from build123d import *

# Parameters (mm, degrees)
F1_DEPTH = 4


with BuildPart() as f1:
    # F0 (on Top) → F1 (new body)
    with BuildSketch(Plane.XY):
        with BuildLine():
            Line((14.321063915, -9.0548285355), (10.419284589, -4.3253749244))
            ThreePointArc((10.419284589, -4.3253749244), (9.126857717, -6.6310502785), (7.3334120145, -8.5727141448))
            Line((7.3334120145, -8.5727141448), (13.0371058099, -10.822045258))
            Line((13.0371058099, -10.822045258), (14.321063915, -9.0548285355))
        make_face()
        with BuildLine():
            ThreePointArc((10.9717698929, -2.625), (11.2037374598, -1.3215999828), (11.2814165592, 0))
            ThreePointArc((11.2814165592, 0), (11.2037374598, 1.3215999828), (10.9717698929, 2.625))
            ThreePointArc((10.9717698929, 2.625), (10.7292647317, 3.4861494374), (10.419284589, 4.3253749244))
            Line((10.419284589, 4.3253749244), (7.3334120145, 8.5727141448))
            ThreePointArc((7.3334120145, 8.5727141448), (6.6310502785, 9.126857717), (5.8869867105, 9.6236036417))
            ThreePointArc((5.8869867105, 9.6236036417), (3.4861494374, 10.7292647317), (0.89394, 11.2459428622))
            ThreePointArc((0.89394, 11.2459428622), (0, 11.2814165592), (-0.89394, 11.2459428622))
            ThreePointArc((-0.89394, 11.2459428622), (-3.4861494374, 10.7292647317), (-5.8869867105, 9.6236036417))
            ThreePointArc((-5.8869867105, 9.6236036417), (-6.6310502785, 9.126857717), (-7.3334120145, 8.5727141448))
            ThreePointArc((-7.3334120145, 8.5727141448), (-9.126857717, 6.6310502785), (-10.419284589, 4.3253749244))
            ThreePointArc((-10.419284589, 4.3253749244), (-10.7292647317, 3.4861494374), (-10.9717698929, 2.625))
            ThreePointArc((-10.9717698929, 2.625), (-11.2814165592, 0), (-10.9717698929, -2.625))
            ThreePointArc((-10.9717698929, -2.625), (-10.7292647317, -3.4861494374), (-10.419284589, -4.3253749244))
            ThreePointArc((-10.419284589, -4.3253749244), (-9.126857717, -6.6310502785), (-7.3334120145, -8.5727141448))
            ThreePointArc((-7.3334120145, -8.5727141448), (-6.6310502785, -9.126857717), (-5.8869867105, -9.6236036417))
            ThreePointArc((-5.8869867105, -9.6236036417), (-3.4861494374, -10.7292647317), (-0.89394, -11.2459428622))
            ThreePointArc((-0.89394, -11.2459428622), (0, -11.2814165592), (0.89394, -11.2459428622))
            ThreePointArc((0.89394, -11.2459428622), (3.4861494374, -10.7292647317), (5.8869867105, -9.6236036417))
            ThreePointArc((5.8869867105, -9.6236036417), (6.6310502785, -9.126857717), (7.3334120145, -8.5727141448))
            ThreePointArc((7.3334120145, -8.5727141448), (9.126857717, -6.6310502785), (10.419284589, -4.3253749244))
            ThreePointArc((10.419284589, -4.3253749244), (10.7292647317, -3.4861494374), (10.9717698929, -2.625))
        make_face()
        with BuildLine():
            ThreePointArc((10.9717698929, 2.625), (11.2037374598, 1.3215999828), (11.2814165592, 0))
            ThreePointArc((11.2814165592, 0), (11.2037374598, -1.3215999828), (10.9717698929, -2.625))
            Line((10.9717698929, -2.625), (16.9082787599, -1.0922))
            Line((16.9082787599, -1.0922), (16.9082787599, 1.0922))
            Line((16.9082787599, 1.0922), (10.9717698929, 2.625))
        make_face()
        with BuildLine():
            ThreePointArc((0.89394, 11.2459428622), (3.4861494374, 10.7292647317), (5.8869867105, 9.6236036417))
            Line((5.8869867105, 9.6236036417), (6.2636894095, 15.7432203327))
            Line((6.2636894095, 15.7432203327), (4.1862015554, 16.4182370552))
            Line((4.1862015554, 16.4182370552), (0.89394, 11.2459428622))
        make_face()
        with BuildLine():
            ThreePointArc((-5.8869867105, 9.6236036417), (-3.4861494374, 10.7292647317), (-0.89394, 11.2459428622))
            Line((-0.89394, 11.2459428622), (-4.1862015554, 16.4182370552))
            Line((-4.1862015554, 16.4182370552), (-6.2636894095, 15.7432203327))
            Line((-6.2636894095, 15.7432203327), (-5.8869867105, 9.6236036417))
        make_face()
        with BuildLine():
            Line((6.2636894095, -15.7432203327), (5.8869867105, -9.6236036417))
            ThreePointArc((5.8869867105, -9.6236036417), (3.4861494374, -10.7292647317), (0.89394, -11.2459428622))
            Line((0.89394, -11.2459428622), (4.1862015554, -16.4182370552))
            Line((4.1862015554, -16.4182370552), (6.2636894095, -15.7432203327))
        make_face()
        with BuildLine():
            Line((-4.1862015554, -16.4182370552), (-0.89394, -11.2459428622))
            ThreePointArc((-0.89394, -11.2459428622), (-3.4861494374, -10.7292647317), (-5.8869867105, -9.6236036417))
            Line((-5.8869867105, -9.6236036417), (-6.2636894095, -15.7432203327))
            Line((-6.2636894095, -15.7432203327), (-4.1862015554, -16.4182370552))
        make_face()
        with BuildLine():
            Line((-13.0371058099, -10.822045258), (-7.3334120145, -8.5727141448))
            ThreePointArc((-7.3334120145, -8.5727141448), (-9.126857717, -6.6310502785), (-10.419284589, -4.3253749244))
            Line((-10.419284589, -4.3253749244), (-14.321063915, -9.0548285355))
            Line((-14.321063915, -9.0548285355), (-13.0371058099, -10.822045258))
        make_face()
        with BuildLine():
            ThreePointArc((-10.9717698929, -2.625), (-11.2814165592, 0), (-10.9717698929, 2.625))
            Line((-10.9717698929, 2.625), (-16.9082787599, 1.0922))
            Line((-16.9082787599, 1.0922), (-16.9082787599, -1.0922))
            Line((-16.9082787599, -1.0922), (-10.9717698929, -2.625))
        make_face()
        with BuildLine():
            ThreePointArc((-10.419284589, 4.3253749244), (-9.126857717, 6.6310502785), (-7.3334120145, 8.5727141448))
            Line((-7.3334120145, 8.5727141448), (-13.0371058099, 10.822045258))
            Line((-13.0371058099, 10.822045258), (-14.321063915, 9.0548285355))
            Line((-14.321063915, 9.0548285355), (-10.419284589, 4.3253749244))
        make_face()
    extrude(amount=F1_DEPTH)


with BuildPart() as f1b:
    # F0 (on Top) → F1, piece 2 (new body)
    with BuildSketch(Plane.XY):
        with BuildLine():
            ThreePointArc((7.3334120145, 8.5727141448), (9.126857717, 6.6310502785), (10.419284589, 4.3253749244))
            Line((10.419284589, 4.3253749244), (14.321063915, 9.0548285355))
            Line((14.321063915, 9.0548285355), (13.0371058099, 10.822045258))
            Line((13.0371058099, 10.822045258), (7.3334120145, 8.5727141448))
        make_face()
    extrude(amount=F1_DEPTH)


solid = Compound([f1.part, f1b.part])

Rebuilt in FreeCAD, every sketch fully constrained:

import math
import FreeCAD as App
import Part
import Sketcher

V = App.Vector
Q = App.Units.Quantity

doc = App.newDocument("Part")
body = doc.addObject("PartDesign::Body", "Body")

sketch1 = body.newObject("Sketcher::SketchObject", "Sketch")
sketch1.AttachmentSupport = (doc.getObject("XY_Plane"), [""])
sketch1.MapMode = "FlatFace"
sketch1.addGeometry([
    Part.LineSegment(V(14.3, -9.1, 0), V(10.4, -4.3, 0)),
    Part.ArcOfCircle(Part.Circle(V(0, 0, 0), V(0, 0, 1), 11.3), math.radians(-22.54), math.radians(-13.46)),
    Part.LineSegment(V(11, -2.6, 0), V(16.9, -1.1, 0)),
    Part.LineSegment(V(16.9, -1.1, 0), V(16.9, 1.1, 0)),
    Part.LineSegment(V(16.9, 1.1, 0), V(11, 2.6, 0)),
    Part.ArcOfCircle(Part.Circle(V(0, 0, 0), V(0, 0, 1), 11.3), math.radians(13.46), math.radians(22.54)),
    Part.LineSegment(V(10.4, 4.3, 0), V(7.3, 8.6, 0)),
    Part.ArcOfCircle(Part.Circle(V(0, 0, 0), V(0, 0, 1), 11.3), math.radians(49.46), math.radians(58.54)),
    Part.LineSegment(V(5.9, 9.6, 0), V(6.3, 15.7, 0)),
    Part.LineSegment(V(6.3, 15.7, 0), V(4.2, 16.4, 0)),
    Part.LineSegment(V(4.2, 16.4, 0), V(0.9, 11.2, 0)),
    Part.ArcOfCircle(Part.Circle(V(0, 0, 0), V(0, 0, 1), 11.3), math.radians(85.46), math.radians(94.54)),
    Part.LineSegment(V(-0.9, 11.2, 0), V(-4.2, 16.4, 0)),
    Part.LineSegment(V(-4.2, 16.4, 0), V(-6.3, 15.7, 0)),
    Part.LineSegment(V(-6.3, 15.7, 0), V(-5.9, 9.6, 0)),
    Part.ArcOfCircle(Part.Circle(V(0, 0, 0), V(0, 0, 1), 11.3), math.radians(121.46), math.radians(130.54)),
    Part.LineSegment(V(-7.3, 8.6, 0), V(-13, 10.8, 0)),
    Part.LineSegment(V(-13, 10.8, 0), V(-14.3, 9.1, 0)),
    Part.LineSegment(V(-14.3, 9.1, 0), V(-10.4, 4.3, 0)),
    Part.ArcOfCircle(Part.Circle(V(0, 0, 0), V(0, 0, 1), 11.3), math.radians(157.46), math.radians(166.54)),
    Part.LineSegment(V(-11, 2.6, 0), V(-16.9, 1.1, 0)),
    Part.LineSegment(V(-16.9, 1.1, 0), V(-16.9, -1.1, 0)),
    Part.LineSegment(V(-16.9, -1.1, 0), V(-11, -2.6, 0)),
    Part.ArcOfCircle(Part.Circle(V(0, 0, 0), V(0, 0, 1), 11.3), math.radians(-166.54), math.radians(-157.46)),
    Part.LineSegment(V(-10.4, -4.3, 0), V(-14.3, -9.1, 0)),
    Part.LineSegment(V(-14.3, -9.1, 0), V(-13, -10.8, 0)),
    Part.LineSegment(V(-13, -10.8, 0), V(-7.3, -8.6, 0)),
    Part.ArcOfCircle(Part.Circle(V(0, 0, 0), V(0, 0, 1), 11.3), math.radians(-130.54), math.radians(-121.46)),
    Part.LineSegment(V(-5.9, -9.6, 0), V(-6.3, -15.7, 0)),
    Part.LineSegment(V(-6.3, -15.7, 0), V(-4.2, -16.4, 0)),
    Part.LineSegment(V(-4.2, -16.4, 0), V(-0.9, -11.2, 0)),
    Part.ArcOfCircle(Part.Circle(V(0, 0, 0), V(0, 0, 1), 11.3), math.radians(-94.54), math.radians(-85.46)),
    Part.LineSegment(V(0.9, -11.2, 0), V(4.2, -16.4, 0)),
    Part.LineSegment(V(4.2, -16.4, 0), V(6.3, -15.7, 0)),
    Part.LineSegment(V(6.3, -15.7, 0), V(5.9, -9.6, 0)),
    Part.ArcOfCircle(Part.Circle(V(0, 0, 0), V(0, 0, 1), 11.3), math.radians(-58.54), math.radians(-49.46)),
    Part.LineSegment(V(7.3, -8.6, 0), V(13, -10.8, 0)),
    Part.LineSegment(V(13, -10.8, 0), V(14.3, -9.1, 0)),
], False)
sketch1.addConstraint([
    Sketcher.Constraint("Coincident", 0, 2, 1, 1),
    Sketcher.Constraint("Coincident", 1, 2, 2, 1),
    Sketcher.Constraint("Coincident", 2, 2, 3, 1),
    Sketcher.Constraint("Coincident", 3, 2, 4, 1),
    Sketcher.Constraint("Coincident", 4, 2, 5, 1),
    Sketcher.Constraint("Coincident", 5, 2, 6, 1),
    Sketcher.Constraint("Coincident", 6, 2, 7, 1),
    Sketcher.Constraint("Coincident", 7, 2, 8, 1),
    Sketcher.Constraint("Coincident", 8, 2, 9, 1),
    Sketcher.Constraint("Coincident", 9, 2, 10, 1),
    Sketcher.Constraint("Coincident", 10, 2, 11, 1),
    Sketcher.Constraint("Coincident", 11, 2, 12, 1),
    Sketcher.Constraint("Coincident", 12, 2, 13, 1),
    Sketcher.Constraint("Coincident", 13, 2, 14, 1),
    Sketcher.Constraint("Coincident", 14, 2, 15, 1),
    Sketcher.Constraint("Coincident", 15, 2, 16, 1),
    Sketcher.Constraint("Coincident", 16, 2, 17, 1),
    Sketcher.Constraint("Coincident", 17, 2, 18, 1),
    Sketcher.Constraint("Coincident", 18, 2, 19, 1),
    Sketcher.Constraint("Coincident", 19, 2, 20, 1),
    Sketcher.Constraint("Coincident", 20, 2, 21, 1),
    Sketcher.Constraint("Coincident", 21, 2, 22, 1),
    Sketcher.Constraint("Coincident", 22, 2, 23, 1),
    Sketcher.Constraint("Coincident", 23, 2, 24, 1),
    Sketcher.Constraint("Coincident", 24, 2, 25, 1),
    Sketcher.Constraint("Coincident", 25, 2, 26, 1),
    Sketcher.Constraint("Coincident", 26, 2, 27, 1),
    Sketcher.Constraint("Coincident", 27, 2, 28, 1),
    Sketcher.Constraint("Coincident", 28, 2, 29, 1),
    Sketcher.Constraint("Coincident", 29, 2, 30, 1),
    Sketcher.Constraint("Coincident", 30, 2, 31, 1),
    Sketcher.Constraint("Coincident", 31, 2, 32, 1),
    Sketcher.Constraint("Coincident", 32, 2, 33, 1),
    Sketcher.Constraint("Coincident", 33, 2, 34, 1),
    Sketcher.Constraint("Coincident", 34, 2, 35, 1),
    Sketcher.Constraint("Coincident", 35, 2, 36, 1),
    Sketcher.Constraint("Coincident", 36, 2, 37, 1),
    Sketcher.Constraint("Coincident", 37, 2, 0, 1),
    Sketcher.Constraint("Vertical", 3),
    Sketcher.Constraint("Vertical", 21),
    Sketcher.Constraint("Coincident", 1, 3, -1, 1),
    Sketcher.Constraint("Coincident", 5, 3, -1, 1),
    Sketcher.Constraint("Coincident", 7, 3, -1, 1),
    Sketcher.Constraint("Coincident", 11, 3, -1, 1),
    Sketcher.Constraint("Coincident", 15, 3, -1, 1),
    Sketcher.Constraint("Coincident", 19, 3, -1, 1),
    Sketcher.Constraint("Coincident", 23, 3, -1, 1),
    Sketcher.Constraint("Coincident", 27, 3, -1, 1),
    Sketcher.Constraint("Coincident", 31, 3, -1, 1),
    Sketcher.Constraint("Coincident", 35, 3, -1, 1),
    Sketcher.Constraint("Equal", 1, 5),
    Sketcher.Constraint("Equal", 5, 7),
    Sketcher.Constraint("Equal", 7, 11),
    Sketcher.Constraint("Equal", 11, 15),
    Sketcher.Constraint("Equal", 15, 19),
    Sketcher.Constraint("Equal", 19, 23),
    Sketcher.Constraint("Equal", 23, 27),
    Sketcher.Constraint("Equal", 27, 31),
    Sketcher.Constraint("Equal", 31, 35),
    Sketcher.Constraint("Symmetric", 2, 2, 20, 2, -1, 1),
    Sketcher.Constraint("Symmetric", 8, 2, 28, 2, -1, 1),
    Sketcher.Constraint("Symmetric", 9, 2, 29, 2, -1, 1),
    Sketcher.Constraint("Symmetric", 12, 2, 32, 2, -1, 1),
    Sketcher.Constraint("Symmetric", 13, 2, 33, 2, -1, 1),
    Sketcher.Constraint("Symmetric", 16, 2, 36, 2, -1, 1),
    Sketcher.Constraint("Symmetric", 17, 2, 37, 2, -1, 1),
    Sketcher.Constraint("Symmetric", 9, 2, 12, 2, -2),
    Sketcher.Constraint("Symmetric", 8, 2, 13, 2, -2),
    Sketcher.Constraint("Symmetric", 25, 2, 36, 2, -2),
    Sketcher.Constraint("Symmetric", 24, 2, 37, 2, -2),
    Sketcher.Constraint("Parallel", 0, 18),
    Sketcher.Constraint("Parallel", 2, 20),
    Sketcher.Constraint("Parallel", 4, 22),
    Sketcher.Constraint("Parallel", 6, 25),
    Sketcher.Constraint("Parallel", 8, 28),
    Sketcher.Constraint("Parallel", 10, 30),
    Sketcher.Constraint("Parallel", 12, 32),
    Sketcher.Constraint("Parallel", 14, 34),
    Sketcher.Constraint("Parallel", 16, 36),
    Sketcher.Constraint("Horizontal", 10, 2, 11, 2),
    Sketcher.Constraint("Horizontal", 7, 2, 14, 2),
    Sketcher.Constraint("Horizontal", 6, 2, 15, 2),
    Sketcher.Constraint("Horizontal", 5, 2, 18, 2),
    Sketcher.Constraint("Horizontal", 4, 2, 19, 2),
    Sketcher.Constraint("Horizontal", 3, 2, 20, 2),
    Sketcher.Constraint("Horizontal", 2, 2, 21, 2),
    Sketcher.Constraint("Horizontal", 0, 2, 23, 2),
    Sketcher.Constraint("Horizontal", 26, 2, 35, 2),
    Sketcher.Constraint("Equal", 0, 2),
    Sketcher.Constraint("Equal", 4, 8),
    Sketcher.Constraint("Equal", 8, 10),
    Sketcher.Constraint("Equal", 14, 16),
    Sketcher.Constraint("Equal", 13, 17),
    Sketcher.Constraint("Angle", 6, Q("126 deg")),
    Sketcher.Constraint("Angle", 9, Q("162 deg")),
    Sketcher.Constraint("Distance", 6, 5.25),
    Sketcher.Constraint("DistanceY", 1, 2, 4, 2, 5.25),
    Sketcher.Constraint("DistanceY", 3, 1, 3, 2, 2.1844),
    Sketcher.Constraint("Radius", 1, 11.281417),
    Sketcher.Constraint("Distance", 0, 6.1312),
    Sketcher.Constraint("Distance", 9, 2.1844),
    Sketcher.Constraint("DistanceX", -1, 1, 9, 2, 4.186202),
    Sketcher.Constraint("DistanceY", -1, 1, 8, 2, 15.74322),
])
pad1 = body.newObject("PartDesign::Pad", "Pad")
pad1.Profile = sketch1
pad1.Length = 4
body2 = doc.addObject("PartDesign::Body", "Body001")

sketch2 = body2.newObject("Sketcher::SketchObject", "Sketch001")
sketch2.AttachmentSupport = (doc.getObject("XY_Plane001"), [""])
sketch2.MapMode = "FlatFace"
sketch2.addGeometry([
    Part.ArcOfCircle(Part.Circle(V(0, 0, 0), V(0, 0, 1), 11.3), math.radians(23), math.radians(49)),
    Part.LineSegment(V(10.4, 4.3, 0), V(14.3, 9.1, 0)),
    Part.LineSegment(V(14.3, 9.1, 0), V(13, 10.8, 0)),
    Part.LineSegment(V(13, 10.8, 0), V(7.3, 8.6, 0)),
], False)
sketch2.addConstraint([
    Sketcher.Constraint("Coincident", 0, 1, 1, 1),
    Sketcher.Constraint("Coincident", 1, 2, 2, 1),
    Sketcher.Constraint("Coincident", 2, 2, 3, 1),
    Sketcher.Constraint("Coincident", 3, 2, 0, 2),
    Sketcher.Constraint("Coincident", 0, 3, -1, 1),
    Sketcher.Constraint("Equal", 1, 3),
    Sketcher.Constraint("Angle", 2, Q("126 deg")),
    Sketcher.Constraint("Radius", 0, 11.281417),
    Sketcher.Constraint("Distance", 1, 6.1312),
    Sketcher.Constraint("Distance", 2, 2.1844),
    Sketcher.Constraint("DistanceY", -1, 1, 1, 2, 9.054829),
    Sketcher.Constraint("DistanceX", 0, 1, 1, 2, 3.901779),
])
pad2 = body2.newObject("PartDesign::Pad", "Pad001")
pad2.Profile = sketch2
pad2.Length = 4

doc.recompute()
